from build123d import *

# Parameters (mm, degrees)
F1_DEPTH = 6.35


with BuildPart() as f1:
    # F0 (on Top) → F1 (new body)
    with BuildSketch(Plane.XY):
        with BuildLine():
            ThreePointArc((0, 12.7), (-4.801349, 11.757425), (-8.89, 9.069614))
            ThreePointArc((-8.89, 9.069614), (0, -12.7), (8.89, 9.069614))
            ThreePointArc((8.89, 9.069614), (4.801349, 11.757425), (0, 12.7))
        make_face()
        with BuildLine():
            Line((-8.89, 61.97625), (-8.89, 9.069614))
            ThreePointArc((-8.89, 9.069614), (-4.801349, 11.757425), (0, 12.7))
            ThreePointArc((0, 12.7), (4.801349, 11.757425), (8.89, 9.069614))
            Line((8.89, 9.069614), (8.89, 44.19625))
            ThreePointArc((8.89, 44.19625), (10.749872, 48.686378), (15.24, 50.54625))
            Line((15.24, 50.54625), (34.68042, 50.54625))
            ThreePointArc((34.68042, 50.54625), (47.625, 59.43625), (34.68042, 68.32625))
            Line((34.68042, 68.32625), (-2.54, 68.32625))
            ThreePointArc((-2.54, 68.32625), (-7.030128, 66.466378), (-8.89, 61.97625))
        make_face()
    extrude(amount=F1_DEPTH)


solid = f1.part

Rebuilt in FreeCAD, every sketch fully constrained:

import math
import FreeCAD as App
import Part
import Sketcher
from FreeCAD import Vector
Q = App.Units.Quantity

doc = App.newDocument("Part")
body = doc.addObject("PartDesign::Body", "Body")

# Sketch on XY plane
sketch1 = body.newObject("Sketcher::SketchObject", "Sketch")
sketch1.AttachmentSupport = (doc.getObject("XY_Plane"), [""])
sketch1.MapMode = "FlatFace"
sketch1.addGeometry(Part.ArcOfCircle(Part.Circle(Vector(0, 0, 0), Vector(0, 0, 1), 13), math.radians(134), math.radians(406)), False)
sketch1.addGeometry(Part.LineSegment(Vector(9, 9, 0), Vector(9, 44, 0)), False)
sketch1.addGeometry(Part.ArcOfCircle(Part.Circle(Vector(15, 44, 0), Vector(0, 0, 1), 6), math.radians(90), math.radians(180)), False)
sketch1.addGeometry(Part.LineSegment(Vector(15, 51, 0), Vector(35, 51, 0)), False)
sketch1.addGeometry(Part.ArcOfCircle(Part.Circle(Vector(38, 59, 0), Vector(0, 0, 1), 10), math.radians(-111), math.radians(111)), False)
sketch1.addGeometry(Part.LineSegment(Vector(35, 68, 0), Vector(-3, 68, 0)), False)
sketch1.addGeometry(Part.ArcOfCircle(Part.Circle(Vector(-3, 62, 0), Vector(0, 0, 1), 6), math.radians(90), math.radians(180)), False)
sketch1.addGeometry(Part.LineSegment(Vector(-9, 62, 0), Vector(-9, 9, 0)), False)
sketch1.addConstraint(Sketcher.Constraint("Coincident", 0, 2, 1, 1))
sketch1.addConstraint(Sketcher.Constraint("Tangent", 1, 2, 2, 2))
sketch1.addConstraint(Sketcher.Constraint("Tangent", 2, 1, 3, 1))
sketch1.addConstraint(Sketcher.Constraint("Coincident", 3, 2, 4, 1))
sketch1.addConstraint(Sketcher.Constraint("Coincident", 4, 2, 5, 1))
sketch1.addConstraint(Sketcher.Constraint("Tangent", 5, 2, 6, 1))
sketch1.addConstraint(Sketcher.Constraint("Tangent", 6, 2, 7, 1))
sketch1.addConstraint(Sketcher.Constraint("Coincident", 7, 2, 0, 1))
sketch1.addConstraint(Sketcher.Constraint("Vertical", 1))
sketch1.addConstraint(Sketcher.Constraint("Horizontal", 3))
sketch1.addConstraint(Sketcher.Constraint("Horizontal", 5))
sketch1.addConstraint(Sketcher.Constraint("Vertical", 7))
sketch1.addConstraint(Sketcher.Constraint("Coincident", 0, 3, -1, 1))
sketch1.addConstraint(Sketcher.Constraint("Equal", 2, 6))
sketch1.addConstraint(Sketcher.Constraint("Horizontal", 0, 2, 7, 2))
sketch1.addConstraint(Sketcher.Constraint("Vertical", 3, 2, 4, 2))
sketch1.addConstraint(Sketcher.Constraint("Radius", 0, Q("0.5 in")))
sketch1.addConstraint(Sketcher.Constraint("Radius", 2, Q("0.25 in")))
sketch1.addConstraint(Sketcher.Constraint("Radius", 4, Q("0.375 in")))
sketch1.addConstraint(Sketcher.Constraint("DistanceX", -1, 1, 2, 3, Q("0.6 in")))
sketch1.addConstraint(Sketcher.Constraint("DistanceX", -1, 1, 4, 3, Q("1.5 in")))
sketch1.addConstraint(Sketcher.Constraint("DistanceY", 2, 3, 4, 3, Q("0.6 in")))
sketch1.addConstraint(Sketcher.Constraint("DistanceY", 1, 1, 1, 2, 35.126636))
pad1 = body.newObject("PartDesign::Pad", "Pad")
pad1.Profile = sketch1
pad1.Length = Q("0.25 in")

doc.recompute()
